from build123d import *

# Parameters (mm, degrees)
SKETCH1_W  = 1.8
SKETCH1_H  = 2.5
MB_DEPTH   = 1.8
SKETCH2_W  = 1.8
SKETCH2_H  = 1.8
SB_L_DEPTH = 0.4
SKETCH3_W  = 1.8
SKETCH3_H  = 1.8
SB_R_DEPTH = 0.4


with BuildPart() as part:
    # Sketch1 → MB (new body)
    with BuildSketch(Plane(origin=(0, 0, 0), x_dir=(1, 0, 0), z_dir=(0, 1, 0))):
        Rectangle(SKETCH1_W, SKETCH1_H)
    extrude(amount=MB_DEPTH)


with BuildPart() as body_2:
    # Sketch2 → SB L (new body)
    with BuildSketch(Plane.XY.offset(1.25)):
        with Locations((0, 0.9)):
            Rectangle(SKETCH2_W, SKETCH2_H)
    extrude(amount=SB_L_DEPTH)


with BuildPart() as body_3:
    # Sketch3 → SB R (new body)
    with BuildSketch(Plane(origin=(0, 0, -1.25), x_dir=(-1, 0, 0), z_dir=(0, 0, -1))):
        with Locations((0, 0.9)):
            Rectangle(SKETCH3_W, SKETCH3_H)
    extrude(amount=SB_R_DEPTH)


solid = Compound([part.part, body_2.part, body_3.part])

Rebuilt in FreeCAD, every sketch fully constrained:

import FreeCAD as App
import Part
import Sketcher

V = App.Vector

doc = App.newDocument("Part")
body = doc.addObject("PartDesign::Body", "Body")

# Sketch on XZ plane
sketch1 = body.newObject("Sketcher::SketchObject", "Sketch")
sketch1.AttachmentSupport = (doc.getObject("XZ_Plane"), [""])
sketch1.MapMode = "FlatFace"
sketch1.addGeometry([
    Part.LineSegment(V(-0.9, -1.2, 0), V(-0.9, 1.2, 0)),
    Part.LineSegment(V(-0.9, 1.2, 0), V(0.9, 1.2, 0)),
    Part.LineSegment(V(0.9, 1.2, 0), V(0.9, -1.2, 0)),
    Part.LineSegment(V(0.9, -1.2, 0), V(-0.9, -1.2, 0)),
], False)
sketch1.addConstraint([
    Sketcher.Constraint("Coincident", 0, 2, 1, 1),
    Sketcher.Constraint("Coincident", 1, 2, 2, 1),
    Sketcher.Constraint("Coincident", 2, 2, 3, 1),
    Sketcher.Constraint("Coincident", 3, 2, 0, 1),
    Sketcher.Constraint("Vertical", 0),
    Sketcher.Constraint("Horizontal", 1),
    Sketcher.Constraint("Vertical", 2),
    Sketcher.Constraint("Horizontal", 3),
    Sketcher.Constraint("Symmetric", 0, 2, 2, 2, -1, 1),
    Sketcher.Constraint("DistanceX", 1, 1, 1, 2, 1.8),
    Sketcher.Constraint("DistanceY", 0, 1, 0, 2, 2.5),
])
pad1 = body.newObject("PartDesign::Pad", "Pad")
pad1.Profile = sketch1
pad1.Length = 1.8
pad1.Reversed = True
body2 = doc.addObject("PartDesign::Body", "Body001")

# Sketch on XY plane
sketch2 = body2.newObject("Sketcher::SketchObject", "Sketch001")
sketch2.AttachmentSupport = (doc.getObject("XY_Plane001"), [""])
sketch2.MapMode = "FlatFace"
sketch2.AttachmentOffset = App.Placement(V(0, 0, 1.25), App.Rotation())
sketch2.addGeometry([
    Part.LineSegment(V(-0.9, 1.8, 0), V(-0.9, 0, 0)),
    Part.LineSegment(V(-0.9, 0, 0), V(0.9, 0, 0)),
    Part.LineSegment(V(0.9, 0, 0), V(0.9, 1.8, 0)),
    Part.LineSegment(V(0.9, 1.8, 0), V(-0.9, 1.8, 0)),
], False)
sketch2.addConstraint([
    Sketcher.Constraint("Coincident", 0, 2, 1, 1),
    Sketcher.Constraint("Coincident", 1, 2, 2, 1),
    Sketcher.Constraint("Coincident", 2, 2, 3, 1),
    Sketcher.Constraint("Coincident", 3, 2, 0, 1),
    Sketcher.Constraint("Vertical", 0),
    Sketcher.Constraint("Horizontal", 1),
    Sketcher.Constraint("Vertical", 2),
    Sketcher.Constraint("Horizontal", 3),
    Sketcher.Constraint("Symmetric", 0, 2, 1, 2, -1, 1),
    Sketcher.Constraint("Equal", 3, 0),
    Sketcher.Constraint("DistanceX", 1, 1, 1, 2, 1.8),
])
pad2 = body2.newObject("PartDesign::Pad", "Pad001")
pad2.Profile = sketch2
pad2.Length = 0.4
body3 = doc.addObject("PartDesign::Body", "Body002")

# Sketch on XY plane
sketch3 = body3.newObject("Sketcher::SketchObject", "Sketch002")
sketch3.AttachmentSupport = (doc.getObject("XY_Plane002"), [""])
sketch3.MapMode = "FlatFace"
sketch3.AttachmentOffset = App.Placement(V(0, 0, -1.25), App.Rotation())
sketch3.addGeometry([
    Part.LineSegment(V(0.9, 1.8, 0), V(0.9, 0, 0)),
    Part.LineSegment(V(0.9, 0, 0), V(-0.9, 0, 0)),
    Part.LineSegment(V(-0.9, 0, 0), V(-0.9, 1.8, 0)),
    Part.LineSegment(V(-0.9, 1.8, 0), V(0.9, 1.8, 0)),
], False)
sketch3.addConstraint([
    Sketcher.Constraint("Coincident", 0, 2, 1, 1),
    Sketcher.Constraint("Coincident", 1, 2, 2, 1),
    Sketcher.Constraint("Coincident", 2, 2, 3, 1),
    Sketcher.Constraint("Coincident", 3, 2, 0, 1),
    Sketcher.Constraint("Vertical", 0),
    Sketcher.Constraint("Horizontal", 1),
    Sketcher.Constraint("Vertical", 2),
    Sketcher.Constraint("Horizontal", 3),
    Sketcher.Constraint("Symmetric", 0, 2, 1, 2, -1, 1),
    Sketcher.Constraint("Equal", 3, 0),
    Sketcher.Constraint("DistanceX", 1, 2, 1, 1, 1.8),
])
pad3 = body3.newObject("PartDesign::Pad", "Pad002")
pad3.Profile = sketch3
pad3.Length = 0.4
pad3.Reversed = True

doc.recompute()
